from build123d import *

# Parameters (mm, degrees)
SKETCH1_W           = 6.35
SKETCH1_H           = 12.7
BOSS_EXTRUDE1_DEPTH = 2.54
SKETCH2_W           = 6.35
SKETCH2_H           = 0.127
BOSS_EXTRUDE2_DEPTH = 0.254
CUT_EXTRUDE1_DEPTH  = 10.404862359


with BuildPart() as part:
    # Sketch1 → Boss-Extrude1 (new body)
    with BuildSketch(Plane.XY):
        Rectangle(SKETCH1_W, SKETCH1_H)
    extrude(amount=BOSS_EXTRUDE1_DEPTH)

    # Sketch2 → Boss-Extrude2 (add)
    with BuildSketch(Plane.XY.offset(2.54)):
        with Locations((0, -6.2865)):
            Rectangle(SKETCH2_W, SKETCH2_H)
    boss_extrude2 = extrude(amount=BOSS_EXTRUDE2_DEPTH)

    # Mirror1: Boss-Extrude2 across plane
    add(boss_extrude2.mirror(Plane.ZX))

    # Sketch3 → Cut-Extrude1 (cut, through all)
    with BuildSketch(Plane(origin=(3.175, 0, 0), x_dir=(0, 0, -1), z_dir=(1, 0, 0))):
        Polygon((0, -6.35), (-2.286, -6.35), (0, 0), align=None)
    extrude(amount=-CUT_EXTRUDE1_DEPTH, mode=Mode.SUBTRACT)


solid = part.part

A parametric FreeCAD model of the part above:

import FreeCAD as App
import Part
import Sketcher
Q = App.Units.Quantity


def add_polygon(sketch, points):
    """Adds a closed chain of lines whose ends are joined by coincident constraints."""
    first, n = sketch.GeometryCount, len(points)
    for a, b in zip(points, points[1:] + points[:1]):
        sketch.addGeometry(Part.LineSegment(App.Vector(*a, 0), App.Vector(*b, 0)), False)
    for i in range(n):
        sketch.addConstraint(Sketcher.Constraint("Coincident", first + i, 2, first + (i + 1) % n, 1))

doc = App.newDocument("Part")
body = doc.addObject("PartDesign::Body", "Body")

# Sketch on XY plane
sketch1 = body.newObject("Sketcher::SketchObject", "Sketch")
sketch1.AttachmentSupport = (doc.getObject("XY_Plane"), [""])
sketch1.MapMode = "FlatFace"
add_polygon(sketch1, [(-3, 6), (-3, -6), (3, -6), (3, 6)])  # lines 0-3
sketch1.addConstraint(Sketcher.Constraint("Vertical", 0))
sketch1.addConstraint(Sketcher.Constraint("Horizontal", 1))
sketch1.addConstraint(Sketcher.Constraint("Vertical", 2))
sketch1.addConstraint(Sketcher.Constraint("Horizontal", 3))
sketch1.addConstraint(Sketcher.Constraint("Symmetric", 0, 2, 2, 2, -1, 1))
sketch1.addConstraint(Sketcher.Constraint("DistanceY", 0, 2, 0, 1, Q("0.5 in")))
sketch1.addConstraint(Sketcher.Constraint("DistanceX", 1, 1, 1, 2, Q("0.25 in")))
pad1 = body.newObject("PartDesign::Pad", "Pad")
pad1.Profile = sketch1
pad1.Length = Q("0.1 in")

# Sketch on XY plane
sketch2 = body.newObject("Sketcher::SketchObject", "Sketch001")
sketch2.AttachmentSupport = (doc.getObject("XY_Plane"), [""])
sketch2.MapMode = "FlatFace"
sketch2.AttachmentOffset = App.Placement(App.Vector(0, 0, 0.1 * 25.4), App.Rotation())
add_polygon(sketch2, [(-3.17, -6.22), (-3.17, -6.35), (3.17, -6.35), (3.17, -6.22)])  # lines 0-3
sketch2.addConstraint(Sketcher.Constraint("Vertical", 0))
sketch2.addConstraint(Sketcher.Constraint("Horizontal", 1))
sketch2.addConstraint(Sketcher.Constraint("Vertical", 2))
sketch2.addConstraint(Sketcher.Constraint("Horizontal", 3))
sketch2.addConstraint(Sketcher.Constraint("DistanceX", 1, 1, 1, 2, Q("0.25 in")))
sketch2.addConstraint(Sketcher.Constraint("DistanceY", 0, 2, 0, 1, Q("0.005 in")))
sketch2.addConstraint(Sketcher.Constraint("DistanceY", 0, 2, -1, 1, Q("0.25 in")))
sketch2.addConstraint(Sketcher.Constraint("DistanceX", 0, 2, -1, 1, Q("0.125 in")))
pad2 = body.newObject("PartDesign::Pad", "Pad001")
pad2.Profile = sketch2
pad2.Length = Q("0.01 in")
doc.recompute()

mirrored = body.newObject("PartDesign::Mirrored", "Mirrored")
mirrored.Originals = [pad2]
mirrored.MirrorPlane = (doc.getObject("XZ_Plane"), [""])
body.Tip = mirrored

# Sketch on YZ plane
sketch3 = body.newObject("Sketcher::SketchObject", "Sketch002")
sketch3.AttachmentSupport = (doc.getObject("YZ_Plane"), [""])
sketch3.MapMode = "FlatFace"
sketch3.AttachmentOffset = App.Placement(App.Vector(0, 0, 0.125 * 25.4), App.Rotation())
add_polygon(sketch3, [(-6.3, 2.3), (-6.3, 0), (0, 0)])  # lines 0-2
sketch3.addConstraint(Sketcher.Constraint("Vertical", 0))
sketch3.addConstraint(Sketcher.Constraint("Horizontal", 1))
sketch3.addConstraint(Sketcher.Constraint("Coincident", 1, 2, -1, 1))
sketch3.addConstraint(Sketcher.Constraint("DistanceX", 1, 1, 1, 2, Q("0.25 in")))
sketch3.addConstraint(Sketcher.Constraint("DistanceY", 0, 2, 0, 1, Q("0.09 in")))
pocket1 = body.newObject("PartDesign::Pocket", "Pocket")
pocket1.Profile = sketch3
pocket1.Type = "ThroughAll"

doc.recompute()
